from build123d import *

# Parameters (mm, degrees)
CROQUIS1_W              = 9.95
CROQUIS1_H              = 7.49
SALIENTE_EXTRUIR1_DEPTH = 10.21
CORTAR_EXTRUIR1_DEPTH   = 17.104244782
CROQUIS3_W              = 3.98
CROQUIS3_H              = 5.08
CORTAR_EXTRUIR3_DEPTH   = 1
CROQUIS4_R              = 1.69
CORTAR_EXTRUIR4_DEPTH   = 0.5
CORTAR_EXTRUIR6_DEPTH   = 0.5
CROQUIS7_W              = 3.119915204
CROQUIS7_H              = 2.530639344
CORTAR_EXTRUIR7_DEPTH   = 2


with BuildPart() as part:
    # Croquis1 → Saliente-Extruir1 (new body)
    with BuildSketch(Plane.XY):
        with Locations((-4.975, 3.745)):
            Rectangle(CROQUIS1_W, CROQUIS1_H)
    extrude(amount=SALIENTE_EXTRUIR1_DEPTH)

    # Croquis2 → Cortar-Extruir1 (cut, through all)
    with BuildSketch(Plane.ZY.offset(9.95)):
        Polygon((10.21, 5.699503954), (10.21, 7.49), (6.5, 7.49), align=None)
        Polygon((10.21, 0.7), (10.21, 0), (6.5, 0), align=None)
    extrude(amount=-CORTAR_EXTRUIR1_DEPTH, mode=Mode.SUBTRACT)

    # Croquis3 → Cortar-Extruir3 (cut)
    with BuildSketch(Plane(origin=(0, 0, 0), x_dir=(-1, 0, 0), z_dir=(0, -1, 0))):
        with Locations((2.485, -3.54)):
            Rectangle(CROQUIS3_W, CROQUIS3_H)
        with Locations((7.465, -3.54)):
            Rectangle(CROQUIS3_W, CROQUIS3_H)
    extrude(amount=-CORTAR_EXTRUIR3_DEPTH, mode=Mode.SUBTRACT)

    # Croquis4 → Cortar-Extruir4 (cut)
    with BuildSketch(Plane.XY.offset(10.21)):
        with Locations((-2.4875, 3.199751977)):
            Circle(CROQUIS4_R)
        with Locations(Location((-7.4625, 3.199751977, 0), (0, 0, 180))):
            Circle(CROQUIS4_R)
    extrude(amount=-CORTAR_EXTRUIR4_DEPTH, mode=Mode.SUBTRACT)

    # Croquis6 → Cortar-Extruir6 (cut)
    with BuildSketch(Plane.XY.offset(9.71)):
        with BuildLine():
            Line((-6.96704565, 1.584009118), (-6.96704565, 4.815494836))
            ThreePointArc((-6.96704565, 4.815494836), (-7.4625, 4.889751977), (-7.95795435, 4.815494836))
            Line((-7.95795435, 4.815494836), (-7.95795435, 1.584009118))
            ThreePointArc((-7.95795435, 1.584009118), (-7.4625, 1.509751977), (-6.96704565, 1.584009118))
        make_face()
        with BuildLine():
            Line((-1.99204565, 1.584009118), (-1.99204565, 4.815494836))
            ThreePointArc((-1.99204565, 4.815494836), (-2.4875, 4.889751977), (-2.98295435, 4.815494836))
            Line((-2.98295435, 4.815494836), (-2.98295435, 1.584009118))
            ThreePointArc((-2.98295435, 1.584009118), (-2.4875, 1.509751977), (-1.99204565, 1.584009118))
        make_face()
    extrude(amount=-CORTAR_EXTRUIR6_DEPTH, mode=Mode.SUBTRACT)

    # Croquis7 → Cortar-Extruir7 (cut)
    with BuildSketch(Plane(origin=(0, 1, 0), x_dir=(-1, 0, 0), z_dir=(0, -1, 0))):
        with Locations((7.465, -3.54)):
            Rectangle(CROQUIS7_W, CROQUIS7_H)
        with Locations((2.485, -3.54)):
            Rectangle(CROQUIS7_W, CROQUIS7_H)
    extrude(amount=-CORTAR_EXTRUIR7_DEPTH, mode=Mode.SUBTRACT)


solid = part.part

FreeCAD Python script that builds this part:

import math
import FreeCAD as App
import Part
import Sketcher

V = App.Vector
Q = App.Units.Quantity


def add_polygon(sketch, points):
    """Adds a closed chain of lines whose ends are joined by coincident constraints."""
    first, n = sketch.GeometryCount, len(points)
    for a, b in zip(points, points[1:] + points[:1]):
        sketch.addGeometry(Part.LineSegment(App.Vector(*a, 0), App.Vector(*b, 0)), False)
    for i in range(n):
        sketch.addConstraint(Sketcher.Constraint("Coincident", first + i, 2, first + (i + 1) % n, 1))

doc = App.newDocument("Part")
body = doc.addObject("PartDesign::Body", "Body")

# Sketch on XY plane
sketch1 = body.newObject("Sketcher::SketchObject", "Sketch")
sketch1.AttachmentSupport = (doc.getObject("XY_Plane"), [""])
sketch1.MapMode = "FlatFace"
add_polygon(sketch1, [(-9.95, 7.49), (-9.95, 0), (0, 0), (0, 7.49)])  # lines 0-3
sketch1.addConstraint([
    Sketcher.Constraint("Vertical", 0),
    Sketcher.Constraint("Horizontal", 1),
    Sketcher.Constraint("Vertical", 2),
    Sketcher.Constraint("Horizontal", 3),
    Sketcher.Constraint("Coincident", 1, 2, -1, 1),
    Sketcher.Constraint("DistanceX", 1, 1, 1, 2, Q("9.95 mm")),
    Sketcher.Constraint("DistanceY", 0, 2, 0, 1, Q("7.49 mm")),
])
pad1 = body.newObject("PartDesign::Pad", "Pad")
pad1.Profile = sketch1
pad1.Length = 10.21

# Sketch on YZ plane
sketch2 = body.newObject("Sketcher::SketchObject", "Sketch001")
sketch2.AttachmentSupport = (doc.getObject("YZ_Plane"), [""])
sketch2.MapMode = "FlatFace"
sketch2.AttachmentOffset = App.Placement(V(0, 0, -9.95), App.Rotation())
add_polygon(sketch2, [(5.699504, 10.21), (7.49, 10.21), (7.49, 6.5)])  # lines 0-2
add_polygon(sketch2, [(0, 10.21), (0.7, 10.21), (0, 6.5)])  # lines 3-5
sketch2.addConstraint([
    Sketcher.Constraint("Horizontal", 0),
    Sketcher.Constraint("Vertical", 1),
    Sketcher.Constraint("Horizontal", 3),
    Sketcher.Constraint("Vertical", 5),
    Sketcher.Constraint("PointOnObject", 4, 2, -2),
    Sketcher.Constraint("Horizontal", 2, 2, 3, 2),
    Sketcher.Constraint("Horizontal", 1, 2, 4, 2),
    Sketcher.Constraint("DistanceX", 3, 1, 3, 2, Q("0.7 mm")),
    Sketcher.Constraint("DistanceY", 1, 2, 1, 1, Q("3.71 mm")),
    Sketcher.Constraint("DistanceY", -1, 1, 1, 2, Q("6.5 mm")),
    Sketcher.Constraint("DistanceX", -1, 1, 0, 2, Q("7.49 mm")),
    Sketcher.Constraint("DistanceX", 0, 1, 0, 2, Q("1.790496 mm")),
])
pocket1 = body.newObject("PartDesign::Pocket", "Pocket")
pocket1.Profile = sketch2
pocket1.Type = "ThroughAll"
pocket1.Reversed = True

# Sketch on XZ plane
sketch3 = body.newObject("Sketcher::SketchObject", "Sketch002")
sketch3.AttachmentSupport = (doc.getObject("XZ_Plane"), [""])
sketch3.MapMode = "FlatFace"
add_polygon(sketch3, [(-0.495, 1), (-0.495, 6.08), (-4.475, 6.08), (-4.475, 1)])  # lines 0-3
add_polygon(sketch3, [(-5.475, 1), (-5.475, 6.08), (-9.455, 6.08), (-9.455, 1)])  # lines 4-7
sketch3.addConstraint([
    Sketcher.Constraint("Vertical", 0),
    Sketcher.Constraint("Horizontal", 1),
    Sketcher.Constraint("Vertical", 2),
    Sketcher.Constraint("Horizontal", 3),
    Sketcher.Constraint("Vertical", 4),
    Sketcher.Constraint("Horizontal", 5),
    Sketcher.Constraint("Vertical", 6),
    Sketcher.Constraint("Horizontal", 7),
    Sketcher.Constraint("Horizontal", 1, 2, 4, 2),
    Sketcher.Constraint("Horizontal", 3, 2, 6, 2),
    Sketcher.Constraint("Equal", 3, 5),
    Sketcher.Constraint("DistanceY", -1, 1, 2, 2, Q("1 mm")),
    Sketcher.Constraint("DistanceX", 4, 2, 1, 2, Q("1 mm")),
    Sketcher.Constraint("DistanceX", 1, 2, 1, 1, Q("3.98 mm")),
    Sketcher.Constraint("DistanceY", 0, 1, 0, 2, Q("5.08 mm")),
    Sketcher.Constraint("DistanceX", 0, 2, -1, 1, Q("0.495 mm")),
])
pocket2 = body.newObject("PartDesign::Pocket", "Pocket001")
pocket2.Profile = sketch3
pocket2.Length = 1

# Sketch on XY plane
sketch4 = body.newObject("Sketcher::SketchObject", "Sketch003")
sketch4.AttachmentSupport = (doc.getObject("XY_Plane"), [""])
sketch4.MapMode = "FlatFace"
sketch4.AttachmentOffset = App.Placement(V(0, 0, 10.21), App.Rotation())
sketch4.addGeometry([
    Part.Circle(V(-2.4875, 3.199752, 0), V(0, 0, 1), 1.69),
    Part.Circle(V(-7.4625, 3.199752, 0), V(0, 0, 1), 1.69),
], False)
sketch4.addConstraint([
    Sketcher.Constraint("Equal", 0, 1),
    Sketcher.Constraint("Horizontal", 0, 3, 1, 3),
    Sketcher.Constraint("Diameter", 0, Q("3.38 mm")),
    Sketcher.Constraint("DistanceX", 1, 3, 0, 3, Q("4.975 mm")),
    Sketcher.Constraint("DistanceX", 0, 3, -1, 1, Q("2.4875 mm")),
    Sketcher.Constraint("DistanceY", -1, 1, 0, 3, Q("3.199752 mm")),
])
pocket3 = body.newObject("PartDesign::Pocket", "Pocket002")
pocket3.Profile = sketch4
pocket3.Length = 0.5

# Sketch on XY plane
sketch5 = body.newObject("Sketcher::SketchObject", "Sketch004")
sketch5.AttachmentSupport = (doc.getObject("XY_Plane"), [""])
sketch5.MapMode = "FlatFace"
sketch5.AttachmentOffset = App.Placement(V(0, 0, 9.71), App.Rotation())
sketch5.addGeometry([
    Part.LineSegment(V(-6.967046, 1.584009, 0), V(-6.967046, 4.815495, 0)),  # 0
    Part.ArcOfCircle(Part.Circle(V(-7.4625, 3.199752, 0), V(0, 0, 1), 1.69), math.radians(72.95227), math.radians(107.04773)),  # 1
    Part.LineSegment(V(-7.957954, 4.815495, 0), V(-7.957954, 1.584009, 0)),  # 2
    Part.ArcOfCircle(Part.Circle(V(-7.4625, 3.199752, 0), V(0, 0, 1), 1.69), math.radians(-107.04773), math.radians(-72.95227)),  # 3
    Part.LineSegment(V(-1.992046, 1.584009, 0), V(-1.992046, 4.815495, 0)),  # 4
    Part.ArcOfCircle(Part.Circle(V(-2.4875, 3.199752, 0), V(0, 0, 1), 1.69), math.radians(72.95227), math.radians(107.04773)),  # 5
    Part.LineSegment(V(-2.982954, 4.815495, 0), V(-2.982954, 1.584009, 0)),  # 6
    Part.ArcOfCircle(Part.Circle(V(-2.4875, 3.199752, 0), V(0, 0, 1), 1.69), math.radians(-107.04773), math.radians(-72.95227)),  # 7
], False)
sketch5.addConstraint([
    Sketcher.Constraint("Coincident", 0, 2, 1, 1),
    Sketcher.Constraint("Coincident", 1, 2, 2, 1),
    Sketcher.Constraint("Coincident", 2, 2, 3, 1),
    Sketcher.Constraint("Coincident", 3, 2, 0, 1),
    Sketcher.Constraint("Coincident", 4, 2, 5, 1),
    Sketcher.Constraint("Coincident", 5, 2, 6, 1),
    Sketcher.Constraint("Coincident", 6, 2, 7, 1),
    Sketcher.Constraint("Coincident", 7, 2, 4, 1),
    Sketcher.Constraint("Vertical", 0),
    Sketcher.Constraint("Vertical", 2),
    Sketcher.Constraint("Vertical", 4),
    Sketcher.Constraint("Vertical", 6),
    Sketcher.Constraint("Coincident", 3, 3, 1, 3),
    Sketcher.Constraint("Coincident", 7, 3, 5, 3),
    Sketcher.Constraint("Equal", 1, 3),
    Sketcher.Constraint("Equal", 3, 5),
    Sketcher.Constraint("Equal", 5, 7),
    Sketcher.Constraint("Horizontal", 3, 3, 5, 3),
    Sketcher.Constraint("Horizontal", 0, 2, 1, 2),
    Sketcher.Constraint("Horizontal", 1, 2, 4, 2),
    Sketcher.Constraint("Horizontal", 4, 2, 5, 2),
    Sketcher.Constraint("Radius", 1, Q("1.69 mm")),
    Sketcher.Constraint("DistanceX", 1, 3, 5, 3, Q("4.975 mm")),
    Sketcher.Constraint("DistanceX", 1, 3, -1, 1, Q("7.4625 mm")),
    Sketcher.Constraint("DistanceY", 0, 1, 0, 2, Q("3.231486 mm")),
    Sketcher.Constraint("DistanceY", -1, 1, 1, 3, Q("3.199752 mm")),
])
pocket4 = body.newObject("PartDesign::Pocket", "Pocket003")
pocket4.Profile = sketch5
pocket4.Length = 0.5

# Sketch on XZ plane
sketch6 = body.newObject("Sketcher::SketchObject", "Sketch005")
sketch6.AttachmentSupport = (doc.getObject("XZ_Plane"), [""])
sketch6.MapMode = "FlatFace"
sketch6.AttachmentOffset = App.Placement(V(0, 0, -1), App.Rotation())
add_polygon(sketch6, [(-5.905042, 2.27468), (-5.905042, 4.80532), (-9.024958, 4.80532), (-9.024958, 2.27468)])  # lines 0-3
add_polygon(sketch6, [(-0.925042, 2.27468), (-0.925042, 4.80532), (-4.044958, 4.80532), (-4.044958, 2.27468)])  # lines 4-7
sketch6.addConstraint([
    Sketcher.Constraint("Vertical", 0),
    Sketcher.Constraint("Horizontal", 1),
    Sketcher.Constraint("Vertical", 2),
    Sketcher.Constraint("Horizontal", 3),
    Sketcher.Constraint("Vertical", 4),
    Sketcher.Constraint("Horizontal", 5),
    Sketcher.Constraint("Vertical", 6),
    Sketcher.Constraint("Horizontal", 7),
    Sketcher.Constraint("Horizontal", 1, 2, 4, 2),
    Sketcher.Constraint("Horizontal", 3, 2, 6, 2),
    Sketcher.Constraint("Equal", 3, 5),
    Sketcher.Constraint("DistanceX", 0, 2, 4, 2, Q("4.98 mm")),
    Sketcher.Constraint("DistanceY", 0, 1, 0, 2, Q("2.530639 mm")),
    Sketcher.Constraint("DistanceX", 1, 2, 1, 1, Q("3.119915 mm")),
    Sketcher.Constraint("DistanceY", -1, 1, 0, 2, Q("4.80532 mm")),
    Sketcher.Constraint("DistanceX", 0, 2, -1, 1, Q("5.905042 mm")),
])
pocket5 = body.newObject("PartDesign::Pocket", "Pocket004")
pocket5.Profile = sketch6
pocket5.Length = 2

doc.recompute()
